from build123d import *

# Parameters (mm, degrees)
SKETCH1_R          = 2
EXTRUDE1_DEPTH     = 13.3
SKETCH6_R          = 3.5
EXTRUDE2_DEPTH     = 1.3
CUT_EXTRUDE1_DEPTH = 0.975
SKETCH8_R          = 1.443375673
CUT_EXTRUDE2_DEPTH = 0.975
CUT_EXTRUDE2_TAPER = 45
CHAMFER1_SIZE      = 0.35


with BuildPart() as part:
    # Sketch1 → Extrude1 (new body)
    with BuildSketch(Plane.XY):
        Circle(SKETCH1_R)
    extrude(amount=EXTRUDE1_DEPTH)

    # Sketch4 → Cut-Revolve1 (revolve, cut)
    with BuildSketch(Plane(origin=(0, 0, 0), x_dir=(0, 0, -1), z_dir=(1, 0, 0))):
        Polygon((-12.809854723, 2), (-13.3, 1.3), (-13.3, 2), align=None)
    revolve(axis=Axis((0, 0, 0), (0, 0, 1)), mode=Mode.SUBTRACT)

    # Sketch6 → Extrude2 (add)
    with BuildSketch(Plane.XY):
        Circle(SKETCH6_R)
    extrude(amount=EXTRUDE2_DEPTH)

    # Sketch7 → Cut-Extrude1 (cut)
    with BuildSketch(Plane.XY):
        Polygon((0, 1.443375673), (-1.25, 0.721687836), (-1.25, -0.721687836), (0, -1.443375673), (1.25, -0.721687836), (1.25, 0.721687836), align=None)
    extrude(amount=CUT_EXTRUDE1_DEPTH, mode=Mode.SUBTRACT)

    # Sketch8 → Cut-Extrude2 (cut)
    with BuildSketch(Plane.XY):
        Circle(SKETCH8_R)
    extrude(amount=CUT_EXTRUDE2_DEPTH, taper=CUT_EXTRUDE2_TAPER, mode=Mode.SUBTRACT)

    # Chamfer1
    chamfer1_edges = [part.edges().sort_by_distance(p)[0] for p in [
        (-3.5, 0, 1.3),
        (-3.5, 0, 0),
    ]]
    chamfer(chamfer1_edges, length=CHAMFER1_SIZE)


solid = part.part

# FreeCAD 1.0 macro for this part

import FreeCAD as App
import Part
import Sketcher
Q = App.Units.Quantity


def edges_at(feature, points):
    """Names of the edges that pass closest to the given points."""
    edges = feature.Shape.Edges
    near = lambda p: min(range(len(edges)), key=lambda i: edges[i].distToShape(Part.Vertex(*p))[0])
    return sorted({f"Edge{near(p) + 1}" for p in points})


def add_polygon(sketch, points):
    """Adds a closed chain of lines whose ends are joined by coincident constraints."""
    first, n = sketch.GeometryCount, len(points)
    for a, b in zip(points, points[1:] + points[:1]):
        sketch.addGeometry(Part.LineSegment(App.Vector(*a, 0), App.Vector(*b, 0)), False)
    for i in range(n):
        sketch.addConstraint(Sketcher.Constraint("Coincident", first + i, 2, first + (i + 1) % n, 1))

doc = App.newDocument("Part")
body = doc.addObject("PartDesign::Body", "Body")

sketch1 = body.newObject("Sketcher::SketchObject", "Sketch")
sketch1.AttachmentSupport = (doc.getObject("XY_Plane"), [""])
sketch1.MapMode = "FlatFace"
sketch1.addGeometry(Part.Circle(App.Vector(0, 0, 0), App.Vector(0, 0, 1), 2), False)
sketch1.addConstraint([
    Sketcher.Constraint("Coincident", 0, 3, -1, 1),
    Sketcher.Constraint("Diameter", 0, Q("4 mm")),
])
pad1 = body.newObject("PartDesign::Pad", "Pad")
pad1.Profile = sketch1
pad1.Length = 13.3

sketch2 = body.newObject("Sketcher::SketchObject", "Sketch001")
sketch2.AttachmentSupport = (doc.getObject("YZ_Plane"), [""])
sketch2.MapMode = "FlatFace"
add_polygon(sketch2, [(1.3, 13.3), (2, 12.809855), (2, 13.3)])
sketch2.addConstraint([
    Sketcher.Constraint("Vertical", 1),
    Sketcher.Constraint("Horizontal", 2),
    Sketcher.Constraint("Angle", 0, Q("-35 deg")),
    Sketcher.Constraint("DistanceX", 2, 2, 2, 1, Q("0.7 mm")),
    Sketcher.Constraint("DistanceX", -1, 1, 0, 2, Q("2 mm")),
    Sketcher.Constraint("DistanceY", -1, 1, 1, 2, Q("13.3 mm")),
])
groove = body.newObject("PartDesign::Groove", "Groove")
groove.Profile = sketch2
groove.ReferenceAxis = (sketch2, ["V_Axis"])
groove.Angle = 360

sketch3 = body.newObject("Sketcher::SketchObject", "Sketch002")
sketch3.AttachmentSupport = (doc.getObject("XY_Plane"), [""])
sketch3.MapMode = "FlatFace"
sketch3.addGeometry(Part.Circle(App.Vector(0, 0, 0), App.Vector(0, 0, 1), 3.5), False)
sketch3.addConstraint([
    Sketcher.Constraint("Coincident", 0, 3, -1, 1),
    Sketcher.Constraint("Diameter", 0, Q("7 mm")),
])
pad2 = body.newObject("PartDesign::Pad", "Pad001")
pad2.Profile = sketch3
pad2.Length = 1.3

sketch4 = body.newObject("Sketcher::SketchObject", "Sketch003")
sketch4.AttachmentSupport = (doc.getObject("XY_Plane"), [""])
sketch4.MapMode = "FlatFace"
add_polygon(sketch4, [(0, 1.443376), (-1.25, 0.721688), (-1.25, -0.721688), (0, -1.443376), (1.25, -0.721688), (1.25, 0.721688)])
sketch4.addConstraint([
    Sketcher.Constraint("Vertical", 1),
    Sketcher.Constraint("Vertical", 4),
    Sketcher.Constraint("Symmetric", 0, 2, 3, 2, -1, 1),
    Sketcher.Constraint("Symmetric", 2, 2, 5, 2, -1, 1),
    Sketcher.Constraint("PointOnObject", 2, 2, -2),
    Sketcher.Constraint("Parallel", 2, 5),
    Sketcher.Constraint("Horizontal", 1, 2, 3, 2),
    Sketcher.Constraint("Angle", 0, Q("-150 deg")),
    Sketcher.Constraint("DistanceX", 1, 2, 3, 2, Q("2.5 mm")),
    Sketcher.Constraint("DistanceY", 1, 2, 1, 1, Q("1.443376 mm")),
])
pocket1 = body.newObject("PartDesign::Pocket", "Pocket")
pocket1.Profile = sketch4
pocket1.Length = 0.975
pocket1.Reversed = True

sketch5 = body.newObject("Sketcher::SketchObject", "Sketch004")
sketch5.AttachmentSupport = (doc.getObject("XY_Plane"), [""])
sketch5.MapMode = "FlatFace"
sketch5.addGeometry(Part.Circle(App.Vector(0, 0, 0), App.Vector(0, 0, 1), 1.443376), False)
sketch5.addConstraint([
    Sketcher.Constraint("Coincident", 0, 3, -1, 1),
    Sketcher.Constraint("Diameter", 0, Q("2.886751 mm")),
])
pocket2 = body.newObject("PartDesign::Pocket", "Pocket001")
pocket2.Profile = sketch5
pocket2.Length = 0.975
pocket2.Reversed = True
pocket2.TaperAngle = -45
doc.recompute()

chamfer = body.newObject("PartDesign::Chamfer", "Chamfer")
chamfer.Base = (pocket2, edges_at(pocket2, [(-3.5, 0, 1.3), (-3.5, 0, 0)]))
chamfer.Size = 0.35

doc.recompute()
